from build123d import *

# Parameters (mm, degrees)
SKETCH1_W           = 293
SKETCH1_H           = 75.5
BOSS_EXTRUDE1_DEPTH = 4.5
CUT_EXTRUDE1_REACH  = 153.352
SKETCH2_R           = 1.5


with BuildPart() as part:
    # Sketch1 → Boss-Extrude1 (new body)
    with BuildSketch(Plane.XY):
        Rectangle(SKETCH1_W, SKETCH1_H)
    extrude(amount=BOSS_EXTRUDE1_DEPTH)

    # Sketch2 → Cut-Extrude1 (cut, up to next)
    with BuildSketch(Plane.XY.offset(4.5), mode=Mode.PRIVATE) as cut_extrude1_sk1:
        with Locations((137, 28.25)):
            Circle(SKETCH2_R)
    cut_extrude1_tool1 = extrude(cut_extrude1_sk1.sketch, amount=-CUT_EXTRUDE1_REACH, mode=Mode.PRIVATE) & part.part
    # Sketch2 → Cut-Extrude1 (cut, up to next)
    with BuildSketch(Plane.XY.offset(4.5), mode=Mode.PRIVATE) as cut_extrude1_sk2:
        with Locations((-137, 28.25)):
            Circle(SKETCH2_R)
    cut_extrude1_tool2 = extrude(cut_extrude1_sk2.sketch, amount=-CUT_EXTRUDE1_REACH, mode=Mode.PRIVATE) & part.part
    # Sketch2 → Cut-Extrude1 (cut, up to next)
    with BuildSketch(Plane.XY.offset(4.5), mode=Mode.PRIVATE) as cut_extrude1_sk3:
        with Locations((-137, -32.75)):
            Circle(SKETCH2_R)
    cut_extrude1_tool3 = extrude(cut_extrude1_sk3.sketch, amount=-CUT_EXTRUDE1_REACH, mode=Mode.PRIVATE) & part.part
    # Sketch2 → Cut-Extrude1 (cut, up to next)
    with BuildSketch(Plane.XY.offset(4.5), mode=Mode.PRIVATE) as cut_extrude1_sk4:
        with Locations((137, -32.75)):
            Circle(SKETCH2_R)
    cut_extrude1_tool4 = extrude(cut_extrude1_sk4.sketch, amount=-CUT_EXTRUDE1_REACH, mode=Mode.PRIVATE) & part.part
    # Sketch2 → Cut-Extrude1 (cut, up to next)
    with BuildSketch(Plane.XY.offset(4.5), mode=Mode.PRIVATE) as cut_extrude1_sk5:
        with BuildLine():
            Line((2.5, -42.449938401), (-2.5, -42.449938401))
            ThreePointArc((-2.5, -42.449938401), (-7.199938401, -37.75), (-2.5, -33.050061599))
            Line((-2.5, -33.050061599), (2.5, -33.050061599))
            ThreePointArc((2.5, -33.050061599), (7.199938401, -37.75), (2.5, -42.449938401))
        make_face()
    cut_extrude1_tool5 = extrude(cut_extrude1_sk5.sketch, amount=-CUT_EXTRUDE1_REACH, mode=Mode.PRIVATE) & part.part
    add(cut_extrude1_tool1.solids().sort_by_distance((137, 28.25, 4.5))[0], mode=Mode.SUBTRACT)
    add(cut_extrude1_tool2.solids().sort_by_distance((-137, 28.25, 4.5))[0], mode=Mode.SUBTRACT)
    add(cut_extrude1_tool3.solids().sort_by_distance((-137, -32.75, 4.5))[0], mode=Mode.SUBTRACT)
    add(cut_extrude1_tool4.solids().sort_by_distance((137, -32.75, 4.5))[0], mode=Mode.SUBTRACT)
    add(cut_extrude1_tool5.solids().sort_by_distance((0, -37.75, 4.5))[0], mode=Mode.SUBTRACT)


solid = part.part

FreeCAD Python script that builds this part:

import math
import FreeCAD as App
import Part
import Sketcher
from FreeCAD import Vector

doc = App.newDocument("Part")
body = doc.addObject("PartDesign::Body", "Body")

# Sketch on XY plane
sketch1 = body.newObject("Sketcher::SketchObject", "Sketch")
sketch1.AttachmentSupport = (doc.getObject("XY_Plane"), [""])
sketch1.MapMode = "FlatFace"
sketch1.addGeometry([
    Part.LineSegment(Vector(-146, 38, 0), Vector(-146, -38, 0)),
    Part.LineSegment(Vector(-146, -38, 0), Vector(146, -38, 0)),
    Part.LineSegment(Vector(146, -38, 0), Vector(146, 38, 0)),
    Part.LineSegment(Vector(146, 38, 0), Vector(-146, 38, 0)),
], False)
sketch1.addConstraint([
    Sketcher.Constraint("Coincident", 0, 2, 1, 1),
    Sketcher.Constraint("Coincident", 1, 2, 2, 1),
    Sketcher.Constraint("Coincident", 2, 2, 3, 1),
    Sketcher.Constraint("Coincident", 3, 2, 0, 1),
    Sketcher.Constraint("Vertical", 0),
    Sketcher.Constraint("Horizontal", 1),
    Sketcher.Constraint("Vertical", 2),
    Sketcher.Constraint("Horizontal", 3),
    Sketcher.Constraint("Symmetric", 0, 2, 2, 2, -1, 1),
    Sketcher.Constraint("DistanceX", 1, 1, 1, 2, 293.0),
    Sketcher.Constraint("DistanceY", 0, 2, 0, 1, 75.5),
])
pad1 = body.newObject("PartDesign::Pad", "Pad")
pad1.Profile = sketch1
pad1.Length = 4.5

# Sketch on XY plane
sketch2 = body.newObject("Sketcher::SketchObject", "Sketch001")
sketch2.AttachmentSupport = (doc.getObject("XY_Plane"), [""])
sketch2.MapMode = "FlatFace"
sketch2.AttachmentOffset = App.Placement(Vector(0, 0, 4.5), App.Rotation())
sketch2.addGeometry(Part.Circle(Vector(137, 28.2, 0), Vector(0, 0, 1), 1.5), False)
sketch2.addConstraint([
    Sketcher.Constraint("Diameter", 0, 3.0),
    Sketcher.Constraint("DistanceX", -1, 1, 0, 3, 137.0),
    Sketcher.Constraint("DistanceY", -1, 1, 0, 3, 28.25),
])
pocket1 = body.newObject("PartDesign::Pocket", "Pocket")
pocket1.Profile = sketch2
pocket1.Type = "UpToFirst"

# Sketch on XY plane
sketch3 = body.newObject("Sketcher::SketchObject", "Sketch002")
sketch3.AttachmentSupport = (doc.getObject("XY_Plane"), [""])
sketch3.MapMode = "FlatFace"
sketch3.AttachmentOffset = App.Placement(Vector(0, 0, 4.5), App.Rotation())
sketch3.addGeometry(Part.Circle(Vector(-137, 28.2, 0), Vector(0, 0, 1), 1.5), False)
sketch3.addConstraint([
    Sketcher.Constraint("Diameter", 0, 3.0),
    Sketcher.Constraint("DistanceX", 0, 3, -1, 1, 137.0),
    Sketcher.Constraint("DistanceY", -1, 1, 0, 3, 28.25),
])
pocket2 = body.newObject("PartDesign::Pocket", "Pocket001")
pocket2.Profile = sketch3
pocket2.Type = "UpToFirst"

# Sketch on XY plane
sketch4 = body.newObject("Sketcher::SketchObject", "Sketch003")
sketch4.AttachmentSupport = (doc.getObject("XY_Plane"), [""])
sketch4.MapMode = "FlatFace"
sketch4.AttachmentOffset = App.Placement(Vector(0, 0, 4.5), App.Rotation())
sketch4.addGeometry(Part.Circle(Vector(-137, -32.8, 0), Vector(0, 0, 1), 1.5), False)
sketch4.addConstraint([
    Sketcher.Constraint("Diameter", 0, 3.0),
    Sketcher.Constraint("DistanceX", 0, 3, -1, 1, 137.0),
    Sketcher.Constraint("DistanceY", 0, 3, -1, 1, 32.75),
])
pocket3 = body.newObject("PartDesign::Pocket", "Pocket002")
pocket3.Profile = sketch4
pocket3.Type = "UpToFirst"

# Sketch on XY plane
sketch5 = body.newObject("Sketcher::SketchObject", "Sketch004")
sketch5.AttachmentSupport = (doc.getObject("XY_Plane"), [""])
sketch5.MapMode = "FlatFace"
sketch5.AttachmentOffset = App.Placement(Vector(0, 0, 4.5), App.Rotation())
sketch5.addGeometry(Part.Circle(Vector(137, -32.8, 0), Vector(0, 0, 1), 1.5), False)
sketch5.addConstraint([
    Sketcher.Constraint("Diameter", 0, 3.0),
    Sketcher.Constraint("DistanceX", -1, 1, 0, 3, 137.0),
    Sketcher.Constraint("DistanceY", 0, 3, -1, 1, 32.75),
])
pocket4 = body.newObject("PartDesign::Pocket", "Pocket003")
pocket4.Profile = sketch5
pocket4.Type = "UpToFirst"

# Sketch on XY plane
sketch6 = body.newObject("Sketcher::SketchObject", "Sketch005")
sketch6.AttachmentSupport = (doc.getObject("XY_Plane"), [""])
sketch6.MapMode = "FlatFace"
sketch6.AttachmentOffset = App.Placement(Vector(0, 0, 4.5), App.Rotation())
sketch6.addGeometry([
    Part.LineSegment(Vector(-2.5, -42.4, 0), Vector(2.5, -42.4, 0)),
    Part.ArcOfCircle(Part.Circle(Vector(2.5, -37.8, 0), Vector(0, 0, 1), 4.7), math.radians(-90), math.radians(90)),
    Part.LineSegment(Vector(2.5, -33.1, 0), Vector(-2.5, -33.1, 0)),
    Part.ArcOfCircle(Part.Circle(Vector(-2.5, -37.8, 0), Vector(0, 0, 1), 4.7), math.radians(90), math.radians(270)),
], False)
sketch6.addConstraint([
    Sketcher.Constraint("Tangent", 0, 2, 1, 1),
    Sketcher.Constraint("Tangent", 1, 2, 2, 1),
    Sketcher.Constraint("Tangent", 2, 2, 3, 1),
    Sketcher.Constraint("Tangent", 3, 2, 0, 1),
    Sketcher.Constraint("Horizontal", 0),
    Sketcher.Constraint("Horizontal", 2),
    Sketcher.Constraint("DistanceX", 0, 1, 0, 2, 5.0),
    Sketcher.Constraint("DistanceX", -1, 1, 1, 3, 2.5),
    Sketcher.Constraint("DistanceY", 1, 3, -1, 1, 37.75),
    Sketcher.Constraint("Radius", 1, 4.699938),
])
pocket5 = body.newObject("PartDesign::Pocket", "Pocket004")
pocket5.Profile = sketch6
pocket5.Type = "UpToFirst"

doc.recompute()
